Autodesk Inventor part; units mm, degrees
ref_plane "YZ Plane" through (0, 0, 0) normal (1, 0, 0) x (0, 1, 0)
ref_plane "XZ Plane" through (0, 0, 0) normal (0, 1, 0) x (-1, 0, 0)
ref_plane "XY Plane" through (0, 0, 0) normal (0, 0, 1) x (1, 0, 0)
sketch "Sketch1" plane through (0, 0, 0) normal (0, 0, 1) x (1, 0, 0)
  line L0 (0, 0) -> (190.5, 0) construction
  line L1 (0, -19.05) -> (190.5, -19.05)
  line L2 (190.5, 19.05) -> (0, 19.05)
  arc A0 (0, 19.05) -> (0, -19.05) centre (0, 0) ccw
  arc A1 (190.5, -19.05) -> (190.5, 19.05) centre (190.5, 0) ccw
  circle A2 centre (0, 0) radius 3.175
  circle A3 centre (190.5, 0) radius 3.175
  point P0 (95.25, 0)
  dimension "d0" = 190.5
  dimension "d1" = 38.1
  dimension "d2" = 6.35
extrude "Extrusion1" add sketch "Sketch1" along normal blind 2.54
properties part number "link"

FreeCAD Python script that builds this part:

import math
import FreeCAD as App
import Part
import Sketcher
from FreeCAD import Vector
Q = App.Units.Quantity

doc = App.newDocument("Part")
body = doc.addObject("PartDesign::Body", "Body")

sketch1 = body.newObject("Sketcher::SketchObject", "Sketch")
sketch1.AttachmentSupport = (doc.getObject("XY_Plane"), [""])
sketch1.MapMode = "FlatFace"
sketch1.addGeometry(Part.ArcOfCircle(Part.Circle(Vector(0, 0, 0), Vector(0, 0, 1), 19.1), math.radians(90), math.radians(270)), False)
sketch1.addGeometry(Part.LineSegment(Vector(0, -19.1, 0), Vector(190.5, -19.1, 0)), False)
sketch1.addGeometry(Part.ArcOfCircle(Part.Circle(Vector(190.5, 0, 0), Vector(0, 0, 1), 19.1), math.radians(-90), math.radians(90)), False)
sketch1.addGeometry(Part.LineSegment(Vector(190.5, 19.1, 0), Vector(0, 19.1, 0)), False)
sketch1.addGeometry(Part.Circle(Vector(0, 0, 0), Vector(0, 0, 1), 3.2), False)
sketch1.addGeometry(Part.Circle(Vector(190.5, 0, 0), Vector(0, 0, 1), 3.2), False)
sketch1.addConstraint(Sketcher.Constraint("Tangent", 0, 2, 1, 1))
sketch1.addConstraint(Sketcher.Constraint("Tangent", 1, 2, 2, 1))
sketch1.addConstraint(Sketcher.Constraint("Tangent", 2, 2, 3, 1))
sketch1.addConstraint(Sketcher.Constraint("Tangent", 3, 2, 0, 1))
sketch1.addConstraint(Sketcher.Constraint("Horizontal", 1))
sketch1.addConstraint(Sketcher.Constraint("Horizontal", 3))
sketch1.addConstraint(Sketcher.Constraint("Coincident", 0, 3, -1, 1))
sketch1.addConstraint(Sketcher.Constraint("Coincident", 4, 3, -1, 1))
sketch1.addConstraint(Sketcher.Constraint("Coincident", 5, 3, 2, 3))
sketch1.addConstraint(Sketcher.Constraint("Equal", 4, 5))
sketch1.addConstraint(Sketcher.Constraint("Diameter", 4, Q("0.25 in")))
sketch1.addConstraint(Sketcher.Constraint("Radius", 0, Q("0.75 in")))
sketch1.addConstraint(Sketcher.Constraint("DistanceX", 1, 1, 1, 2, Q("7.5 in")))
pad1 = body.newObject("PartDesign::Pad", "Pad")
pad1.Profile = sketch1
pad1.Length = Q("0.1 in")

doc.recompute()
